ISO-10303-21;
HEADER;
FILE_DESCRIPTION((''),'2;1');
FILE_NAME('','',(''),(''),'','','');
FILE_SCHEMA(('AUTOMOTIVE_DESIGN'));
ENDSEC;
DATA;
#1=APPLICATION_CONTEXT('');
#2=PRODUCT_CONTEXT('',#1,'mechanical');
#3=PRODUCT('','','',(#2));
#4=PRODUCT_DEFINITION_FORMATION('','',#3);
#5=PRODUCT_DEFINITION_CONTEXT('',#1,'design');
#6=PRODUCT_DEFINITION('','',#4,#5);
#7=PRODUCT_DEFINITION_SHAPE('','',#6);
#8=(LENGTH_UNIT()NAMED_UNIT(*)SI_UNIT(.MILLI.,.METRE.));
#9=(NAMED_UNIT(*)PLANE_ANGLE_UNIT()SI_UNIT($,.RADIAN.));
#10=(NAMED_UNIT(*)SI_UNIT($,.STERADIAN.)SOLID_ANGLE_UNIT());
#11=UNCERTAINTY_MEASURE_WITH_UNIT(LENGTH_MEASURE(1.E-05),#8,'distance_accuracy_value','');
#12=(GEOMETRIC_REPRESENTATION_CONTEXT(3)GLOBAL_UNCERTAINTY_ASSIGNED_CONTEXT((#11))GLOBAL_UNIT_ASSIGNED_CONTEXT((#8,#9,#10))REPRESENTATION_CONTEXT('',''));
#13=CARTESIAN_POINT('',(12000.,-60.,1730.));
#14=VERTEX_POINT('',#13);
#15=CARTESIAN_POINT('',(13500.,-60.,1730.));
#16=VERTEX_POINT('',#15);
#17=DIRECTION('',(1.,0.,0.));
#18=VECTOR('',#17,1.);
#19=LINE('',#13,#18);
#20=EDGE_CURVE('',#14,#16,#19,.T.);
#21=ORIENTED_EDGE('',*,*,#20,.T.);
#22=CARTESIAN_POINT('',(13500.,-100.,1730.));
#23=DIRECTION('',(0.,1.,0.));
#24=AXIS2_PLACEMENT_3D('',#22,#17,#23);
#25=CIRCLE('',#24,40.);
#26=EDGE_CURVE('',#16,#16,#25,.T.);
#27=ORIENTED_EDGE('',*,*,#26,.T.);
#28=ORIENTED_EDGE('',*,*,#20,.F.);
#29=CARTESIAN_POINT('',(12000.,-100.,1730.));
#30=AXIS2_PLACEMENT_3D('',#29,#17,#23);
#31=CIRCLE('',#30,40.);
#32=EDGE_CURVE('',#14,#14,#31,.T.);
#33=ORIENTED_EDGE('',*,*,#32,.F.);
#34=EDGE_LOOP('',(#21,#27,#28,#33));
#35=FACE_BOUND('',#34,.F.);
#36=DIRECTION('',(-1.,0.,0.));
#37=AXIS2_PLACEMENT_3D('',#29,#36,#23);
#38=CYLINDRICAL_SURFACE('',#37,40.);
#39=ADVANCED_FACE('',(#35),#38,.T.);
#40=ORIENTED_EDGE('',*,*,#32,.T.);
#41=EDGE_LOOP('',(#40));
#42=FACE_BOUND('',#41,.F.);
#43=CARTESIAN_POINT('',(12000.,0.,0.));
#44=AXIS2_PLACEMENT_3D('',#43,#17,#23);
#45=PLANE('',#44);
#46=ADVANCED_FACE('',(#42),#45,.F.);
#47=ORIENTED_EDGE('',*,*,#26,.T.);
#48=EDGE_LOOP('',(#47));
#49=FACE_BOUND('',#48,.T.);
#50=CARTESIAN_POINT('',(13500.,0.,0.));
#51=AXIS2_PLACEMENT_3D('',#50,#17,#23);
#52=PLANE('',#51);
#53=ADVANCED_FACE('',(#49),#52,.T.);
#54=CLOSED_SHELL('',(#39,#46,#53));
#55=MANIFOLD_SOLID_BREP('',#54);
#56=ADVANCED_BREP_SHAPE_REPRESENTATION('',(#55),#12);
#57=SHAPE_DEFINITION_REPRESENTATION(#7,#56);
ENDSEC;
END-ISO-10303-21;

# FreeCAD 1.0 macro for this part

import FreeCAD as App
import Part
import Sketcher
from FreeCAD import Vector
Q = App.Units.Quantity

doc = App.newDocument("Part")
body = doc.addObject("PartDesign::Body", "Body")

# Sketch on YZ plane
sketch1 = body.newObject("Sketcher::SketchObject", "Sketch")
sketch1.AttachmentSupport = (doc.getObject("YZ_Plane"), [""])
sketch1.MapMode = "FlatFace"
sketch1.AttachmentOffset = App.Placement(Vector(0, 0, 12000), App.Rotation())
sketch1.addGeometry(Part.Circle(Vector(-100, 1730, 0), Vector(0, 0, 1), 40), False)
sketch1.addConstraint([
    Sketcher.Constraint("Diameter", 0, Q("80 mm")),
    Sketcher.Constraint("DistanceX", 0, 3, -1, 1, Q("100 mm")),
    Sketcher.Constraint("DistanceY", -1, 1, 0, 3, Q("1730 mm")),
])
pad1 = body.newObject("PartDesign::Pad", "Pad")
pad1.Profile = sketch1
pad1.Length = 1500

doc.recompute()
